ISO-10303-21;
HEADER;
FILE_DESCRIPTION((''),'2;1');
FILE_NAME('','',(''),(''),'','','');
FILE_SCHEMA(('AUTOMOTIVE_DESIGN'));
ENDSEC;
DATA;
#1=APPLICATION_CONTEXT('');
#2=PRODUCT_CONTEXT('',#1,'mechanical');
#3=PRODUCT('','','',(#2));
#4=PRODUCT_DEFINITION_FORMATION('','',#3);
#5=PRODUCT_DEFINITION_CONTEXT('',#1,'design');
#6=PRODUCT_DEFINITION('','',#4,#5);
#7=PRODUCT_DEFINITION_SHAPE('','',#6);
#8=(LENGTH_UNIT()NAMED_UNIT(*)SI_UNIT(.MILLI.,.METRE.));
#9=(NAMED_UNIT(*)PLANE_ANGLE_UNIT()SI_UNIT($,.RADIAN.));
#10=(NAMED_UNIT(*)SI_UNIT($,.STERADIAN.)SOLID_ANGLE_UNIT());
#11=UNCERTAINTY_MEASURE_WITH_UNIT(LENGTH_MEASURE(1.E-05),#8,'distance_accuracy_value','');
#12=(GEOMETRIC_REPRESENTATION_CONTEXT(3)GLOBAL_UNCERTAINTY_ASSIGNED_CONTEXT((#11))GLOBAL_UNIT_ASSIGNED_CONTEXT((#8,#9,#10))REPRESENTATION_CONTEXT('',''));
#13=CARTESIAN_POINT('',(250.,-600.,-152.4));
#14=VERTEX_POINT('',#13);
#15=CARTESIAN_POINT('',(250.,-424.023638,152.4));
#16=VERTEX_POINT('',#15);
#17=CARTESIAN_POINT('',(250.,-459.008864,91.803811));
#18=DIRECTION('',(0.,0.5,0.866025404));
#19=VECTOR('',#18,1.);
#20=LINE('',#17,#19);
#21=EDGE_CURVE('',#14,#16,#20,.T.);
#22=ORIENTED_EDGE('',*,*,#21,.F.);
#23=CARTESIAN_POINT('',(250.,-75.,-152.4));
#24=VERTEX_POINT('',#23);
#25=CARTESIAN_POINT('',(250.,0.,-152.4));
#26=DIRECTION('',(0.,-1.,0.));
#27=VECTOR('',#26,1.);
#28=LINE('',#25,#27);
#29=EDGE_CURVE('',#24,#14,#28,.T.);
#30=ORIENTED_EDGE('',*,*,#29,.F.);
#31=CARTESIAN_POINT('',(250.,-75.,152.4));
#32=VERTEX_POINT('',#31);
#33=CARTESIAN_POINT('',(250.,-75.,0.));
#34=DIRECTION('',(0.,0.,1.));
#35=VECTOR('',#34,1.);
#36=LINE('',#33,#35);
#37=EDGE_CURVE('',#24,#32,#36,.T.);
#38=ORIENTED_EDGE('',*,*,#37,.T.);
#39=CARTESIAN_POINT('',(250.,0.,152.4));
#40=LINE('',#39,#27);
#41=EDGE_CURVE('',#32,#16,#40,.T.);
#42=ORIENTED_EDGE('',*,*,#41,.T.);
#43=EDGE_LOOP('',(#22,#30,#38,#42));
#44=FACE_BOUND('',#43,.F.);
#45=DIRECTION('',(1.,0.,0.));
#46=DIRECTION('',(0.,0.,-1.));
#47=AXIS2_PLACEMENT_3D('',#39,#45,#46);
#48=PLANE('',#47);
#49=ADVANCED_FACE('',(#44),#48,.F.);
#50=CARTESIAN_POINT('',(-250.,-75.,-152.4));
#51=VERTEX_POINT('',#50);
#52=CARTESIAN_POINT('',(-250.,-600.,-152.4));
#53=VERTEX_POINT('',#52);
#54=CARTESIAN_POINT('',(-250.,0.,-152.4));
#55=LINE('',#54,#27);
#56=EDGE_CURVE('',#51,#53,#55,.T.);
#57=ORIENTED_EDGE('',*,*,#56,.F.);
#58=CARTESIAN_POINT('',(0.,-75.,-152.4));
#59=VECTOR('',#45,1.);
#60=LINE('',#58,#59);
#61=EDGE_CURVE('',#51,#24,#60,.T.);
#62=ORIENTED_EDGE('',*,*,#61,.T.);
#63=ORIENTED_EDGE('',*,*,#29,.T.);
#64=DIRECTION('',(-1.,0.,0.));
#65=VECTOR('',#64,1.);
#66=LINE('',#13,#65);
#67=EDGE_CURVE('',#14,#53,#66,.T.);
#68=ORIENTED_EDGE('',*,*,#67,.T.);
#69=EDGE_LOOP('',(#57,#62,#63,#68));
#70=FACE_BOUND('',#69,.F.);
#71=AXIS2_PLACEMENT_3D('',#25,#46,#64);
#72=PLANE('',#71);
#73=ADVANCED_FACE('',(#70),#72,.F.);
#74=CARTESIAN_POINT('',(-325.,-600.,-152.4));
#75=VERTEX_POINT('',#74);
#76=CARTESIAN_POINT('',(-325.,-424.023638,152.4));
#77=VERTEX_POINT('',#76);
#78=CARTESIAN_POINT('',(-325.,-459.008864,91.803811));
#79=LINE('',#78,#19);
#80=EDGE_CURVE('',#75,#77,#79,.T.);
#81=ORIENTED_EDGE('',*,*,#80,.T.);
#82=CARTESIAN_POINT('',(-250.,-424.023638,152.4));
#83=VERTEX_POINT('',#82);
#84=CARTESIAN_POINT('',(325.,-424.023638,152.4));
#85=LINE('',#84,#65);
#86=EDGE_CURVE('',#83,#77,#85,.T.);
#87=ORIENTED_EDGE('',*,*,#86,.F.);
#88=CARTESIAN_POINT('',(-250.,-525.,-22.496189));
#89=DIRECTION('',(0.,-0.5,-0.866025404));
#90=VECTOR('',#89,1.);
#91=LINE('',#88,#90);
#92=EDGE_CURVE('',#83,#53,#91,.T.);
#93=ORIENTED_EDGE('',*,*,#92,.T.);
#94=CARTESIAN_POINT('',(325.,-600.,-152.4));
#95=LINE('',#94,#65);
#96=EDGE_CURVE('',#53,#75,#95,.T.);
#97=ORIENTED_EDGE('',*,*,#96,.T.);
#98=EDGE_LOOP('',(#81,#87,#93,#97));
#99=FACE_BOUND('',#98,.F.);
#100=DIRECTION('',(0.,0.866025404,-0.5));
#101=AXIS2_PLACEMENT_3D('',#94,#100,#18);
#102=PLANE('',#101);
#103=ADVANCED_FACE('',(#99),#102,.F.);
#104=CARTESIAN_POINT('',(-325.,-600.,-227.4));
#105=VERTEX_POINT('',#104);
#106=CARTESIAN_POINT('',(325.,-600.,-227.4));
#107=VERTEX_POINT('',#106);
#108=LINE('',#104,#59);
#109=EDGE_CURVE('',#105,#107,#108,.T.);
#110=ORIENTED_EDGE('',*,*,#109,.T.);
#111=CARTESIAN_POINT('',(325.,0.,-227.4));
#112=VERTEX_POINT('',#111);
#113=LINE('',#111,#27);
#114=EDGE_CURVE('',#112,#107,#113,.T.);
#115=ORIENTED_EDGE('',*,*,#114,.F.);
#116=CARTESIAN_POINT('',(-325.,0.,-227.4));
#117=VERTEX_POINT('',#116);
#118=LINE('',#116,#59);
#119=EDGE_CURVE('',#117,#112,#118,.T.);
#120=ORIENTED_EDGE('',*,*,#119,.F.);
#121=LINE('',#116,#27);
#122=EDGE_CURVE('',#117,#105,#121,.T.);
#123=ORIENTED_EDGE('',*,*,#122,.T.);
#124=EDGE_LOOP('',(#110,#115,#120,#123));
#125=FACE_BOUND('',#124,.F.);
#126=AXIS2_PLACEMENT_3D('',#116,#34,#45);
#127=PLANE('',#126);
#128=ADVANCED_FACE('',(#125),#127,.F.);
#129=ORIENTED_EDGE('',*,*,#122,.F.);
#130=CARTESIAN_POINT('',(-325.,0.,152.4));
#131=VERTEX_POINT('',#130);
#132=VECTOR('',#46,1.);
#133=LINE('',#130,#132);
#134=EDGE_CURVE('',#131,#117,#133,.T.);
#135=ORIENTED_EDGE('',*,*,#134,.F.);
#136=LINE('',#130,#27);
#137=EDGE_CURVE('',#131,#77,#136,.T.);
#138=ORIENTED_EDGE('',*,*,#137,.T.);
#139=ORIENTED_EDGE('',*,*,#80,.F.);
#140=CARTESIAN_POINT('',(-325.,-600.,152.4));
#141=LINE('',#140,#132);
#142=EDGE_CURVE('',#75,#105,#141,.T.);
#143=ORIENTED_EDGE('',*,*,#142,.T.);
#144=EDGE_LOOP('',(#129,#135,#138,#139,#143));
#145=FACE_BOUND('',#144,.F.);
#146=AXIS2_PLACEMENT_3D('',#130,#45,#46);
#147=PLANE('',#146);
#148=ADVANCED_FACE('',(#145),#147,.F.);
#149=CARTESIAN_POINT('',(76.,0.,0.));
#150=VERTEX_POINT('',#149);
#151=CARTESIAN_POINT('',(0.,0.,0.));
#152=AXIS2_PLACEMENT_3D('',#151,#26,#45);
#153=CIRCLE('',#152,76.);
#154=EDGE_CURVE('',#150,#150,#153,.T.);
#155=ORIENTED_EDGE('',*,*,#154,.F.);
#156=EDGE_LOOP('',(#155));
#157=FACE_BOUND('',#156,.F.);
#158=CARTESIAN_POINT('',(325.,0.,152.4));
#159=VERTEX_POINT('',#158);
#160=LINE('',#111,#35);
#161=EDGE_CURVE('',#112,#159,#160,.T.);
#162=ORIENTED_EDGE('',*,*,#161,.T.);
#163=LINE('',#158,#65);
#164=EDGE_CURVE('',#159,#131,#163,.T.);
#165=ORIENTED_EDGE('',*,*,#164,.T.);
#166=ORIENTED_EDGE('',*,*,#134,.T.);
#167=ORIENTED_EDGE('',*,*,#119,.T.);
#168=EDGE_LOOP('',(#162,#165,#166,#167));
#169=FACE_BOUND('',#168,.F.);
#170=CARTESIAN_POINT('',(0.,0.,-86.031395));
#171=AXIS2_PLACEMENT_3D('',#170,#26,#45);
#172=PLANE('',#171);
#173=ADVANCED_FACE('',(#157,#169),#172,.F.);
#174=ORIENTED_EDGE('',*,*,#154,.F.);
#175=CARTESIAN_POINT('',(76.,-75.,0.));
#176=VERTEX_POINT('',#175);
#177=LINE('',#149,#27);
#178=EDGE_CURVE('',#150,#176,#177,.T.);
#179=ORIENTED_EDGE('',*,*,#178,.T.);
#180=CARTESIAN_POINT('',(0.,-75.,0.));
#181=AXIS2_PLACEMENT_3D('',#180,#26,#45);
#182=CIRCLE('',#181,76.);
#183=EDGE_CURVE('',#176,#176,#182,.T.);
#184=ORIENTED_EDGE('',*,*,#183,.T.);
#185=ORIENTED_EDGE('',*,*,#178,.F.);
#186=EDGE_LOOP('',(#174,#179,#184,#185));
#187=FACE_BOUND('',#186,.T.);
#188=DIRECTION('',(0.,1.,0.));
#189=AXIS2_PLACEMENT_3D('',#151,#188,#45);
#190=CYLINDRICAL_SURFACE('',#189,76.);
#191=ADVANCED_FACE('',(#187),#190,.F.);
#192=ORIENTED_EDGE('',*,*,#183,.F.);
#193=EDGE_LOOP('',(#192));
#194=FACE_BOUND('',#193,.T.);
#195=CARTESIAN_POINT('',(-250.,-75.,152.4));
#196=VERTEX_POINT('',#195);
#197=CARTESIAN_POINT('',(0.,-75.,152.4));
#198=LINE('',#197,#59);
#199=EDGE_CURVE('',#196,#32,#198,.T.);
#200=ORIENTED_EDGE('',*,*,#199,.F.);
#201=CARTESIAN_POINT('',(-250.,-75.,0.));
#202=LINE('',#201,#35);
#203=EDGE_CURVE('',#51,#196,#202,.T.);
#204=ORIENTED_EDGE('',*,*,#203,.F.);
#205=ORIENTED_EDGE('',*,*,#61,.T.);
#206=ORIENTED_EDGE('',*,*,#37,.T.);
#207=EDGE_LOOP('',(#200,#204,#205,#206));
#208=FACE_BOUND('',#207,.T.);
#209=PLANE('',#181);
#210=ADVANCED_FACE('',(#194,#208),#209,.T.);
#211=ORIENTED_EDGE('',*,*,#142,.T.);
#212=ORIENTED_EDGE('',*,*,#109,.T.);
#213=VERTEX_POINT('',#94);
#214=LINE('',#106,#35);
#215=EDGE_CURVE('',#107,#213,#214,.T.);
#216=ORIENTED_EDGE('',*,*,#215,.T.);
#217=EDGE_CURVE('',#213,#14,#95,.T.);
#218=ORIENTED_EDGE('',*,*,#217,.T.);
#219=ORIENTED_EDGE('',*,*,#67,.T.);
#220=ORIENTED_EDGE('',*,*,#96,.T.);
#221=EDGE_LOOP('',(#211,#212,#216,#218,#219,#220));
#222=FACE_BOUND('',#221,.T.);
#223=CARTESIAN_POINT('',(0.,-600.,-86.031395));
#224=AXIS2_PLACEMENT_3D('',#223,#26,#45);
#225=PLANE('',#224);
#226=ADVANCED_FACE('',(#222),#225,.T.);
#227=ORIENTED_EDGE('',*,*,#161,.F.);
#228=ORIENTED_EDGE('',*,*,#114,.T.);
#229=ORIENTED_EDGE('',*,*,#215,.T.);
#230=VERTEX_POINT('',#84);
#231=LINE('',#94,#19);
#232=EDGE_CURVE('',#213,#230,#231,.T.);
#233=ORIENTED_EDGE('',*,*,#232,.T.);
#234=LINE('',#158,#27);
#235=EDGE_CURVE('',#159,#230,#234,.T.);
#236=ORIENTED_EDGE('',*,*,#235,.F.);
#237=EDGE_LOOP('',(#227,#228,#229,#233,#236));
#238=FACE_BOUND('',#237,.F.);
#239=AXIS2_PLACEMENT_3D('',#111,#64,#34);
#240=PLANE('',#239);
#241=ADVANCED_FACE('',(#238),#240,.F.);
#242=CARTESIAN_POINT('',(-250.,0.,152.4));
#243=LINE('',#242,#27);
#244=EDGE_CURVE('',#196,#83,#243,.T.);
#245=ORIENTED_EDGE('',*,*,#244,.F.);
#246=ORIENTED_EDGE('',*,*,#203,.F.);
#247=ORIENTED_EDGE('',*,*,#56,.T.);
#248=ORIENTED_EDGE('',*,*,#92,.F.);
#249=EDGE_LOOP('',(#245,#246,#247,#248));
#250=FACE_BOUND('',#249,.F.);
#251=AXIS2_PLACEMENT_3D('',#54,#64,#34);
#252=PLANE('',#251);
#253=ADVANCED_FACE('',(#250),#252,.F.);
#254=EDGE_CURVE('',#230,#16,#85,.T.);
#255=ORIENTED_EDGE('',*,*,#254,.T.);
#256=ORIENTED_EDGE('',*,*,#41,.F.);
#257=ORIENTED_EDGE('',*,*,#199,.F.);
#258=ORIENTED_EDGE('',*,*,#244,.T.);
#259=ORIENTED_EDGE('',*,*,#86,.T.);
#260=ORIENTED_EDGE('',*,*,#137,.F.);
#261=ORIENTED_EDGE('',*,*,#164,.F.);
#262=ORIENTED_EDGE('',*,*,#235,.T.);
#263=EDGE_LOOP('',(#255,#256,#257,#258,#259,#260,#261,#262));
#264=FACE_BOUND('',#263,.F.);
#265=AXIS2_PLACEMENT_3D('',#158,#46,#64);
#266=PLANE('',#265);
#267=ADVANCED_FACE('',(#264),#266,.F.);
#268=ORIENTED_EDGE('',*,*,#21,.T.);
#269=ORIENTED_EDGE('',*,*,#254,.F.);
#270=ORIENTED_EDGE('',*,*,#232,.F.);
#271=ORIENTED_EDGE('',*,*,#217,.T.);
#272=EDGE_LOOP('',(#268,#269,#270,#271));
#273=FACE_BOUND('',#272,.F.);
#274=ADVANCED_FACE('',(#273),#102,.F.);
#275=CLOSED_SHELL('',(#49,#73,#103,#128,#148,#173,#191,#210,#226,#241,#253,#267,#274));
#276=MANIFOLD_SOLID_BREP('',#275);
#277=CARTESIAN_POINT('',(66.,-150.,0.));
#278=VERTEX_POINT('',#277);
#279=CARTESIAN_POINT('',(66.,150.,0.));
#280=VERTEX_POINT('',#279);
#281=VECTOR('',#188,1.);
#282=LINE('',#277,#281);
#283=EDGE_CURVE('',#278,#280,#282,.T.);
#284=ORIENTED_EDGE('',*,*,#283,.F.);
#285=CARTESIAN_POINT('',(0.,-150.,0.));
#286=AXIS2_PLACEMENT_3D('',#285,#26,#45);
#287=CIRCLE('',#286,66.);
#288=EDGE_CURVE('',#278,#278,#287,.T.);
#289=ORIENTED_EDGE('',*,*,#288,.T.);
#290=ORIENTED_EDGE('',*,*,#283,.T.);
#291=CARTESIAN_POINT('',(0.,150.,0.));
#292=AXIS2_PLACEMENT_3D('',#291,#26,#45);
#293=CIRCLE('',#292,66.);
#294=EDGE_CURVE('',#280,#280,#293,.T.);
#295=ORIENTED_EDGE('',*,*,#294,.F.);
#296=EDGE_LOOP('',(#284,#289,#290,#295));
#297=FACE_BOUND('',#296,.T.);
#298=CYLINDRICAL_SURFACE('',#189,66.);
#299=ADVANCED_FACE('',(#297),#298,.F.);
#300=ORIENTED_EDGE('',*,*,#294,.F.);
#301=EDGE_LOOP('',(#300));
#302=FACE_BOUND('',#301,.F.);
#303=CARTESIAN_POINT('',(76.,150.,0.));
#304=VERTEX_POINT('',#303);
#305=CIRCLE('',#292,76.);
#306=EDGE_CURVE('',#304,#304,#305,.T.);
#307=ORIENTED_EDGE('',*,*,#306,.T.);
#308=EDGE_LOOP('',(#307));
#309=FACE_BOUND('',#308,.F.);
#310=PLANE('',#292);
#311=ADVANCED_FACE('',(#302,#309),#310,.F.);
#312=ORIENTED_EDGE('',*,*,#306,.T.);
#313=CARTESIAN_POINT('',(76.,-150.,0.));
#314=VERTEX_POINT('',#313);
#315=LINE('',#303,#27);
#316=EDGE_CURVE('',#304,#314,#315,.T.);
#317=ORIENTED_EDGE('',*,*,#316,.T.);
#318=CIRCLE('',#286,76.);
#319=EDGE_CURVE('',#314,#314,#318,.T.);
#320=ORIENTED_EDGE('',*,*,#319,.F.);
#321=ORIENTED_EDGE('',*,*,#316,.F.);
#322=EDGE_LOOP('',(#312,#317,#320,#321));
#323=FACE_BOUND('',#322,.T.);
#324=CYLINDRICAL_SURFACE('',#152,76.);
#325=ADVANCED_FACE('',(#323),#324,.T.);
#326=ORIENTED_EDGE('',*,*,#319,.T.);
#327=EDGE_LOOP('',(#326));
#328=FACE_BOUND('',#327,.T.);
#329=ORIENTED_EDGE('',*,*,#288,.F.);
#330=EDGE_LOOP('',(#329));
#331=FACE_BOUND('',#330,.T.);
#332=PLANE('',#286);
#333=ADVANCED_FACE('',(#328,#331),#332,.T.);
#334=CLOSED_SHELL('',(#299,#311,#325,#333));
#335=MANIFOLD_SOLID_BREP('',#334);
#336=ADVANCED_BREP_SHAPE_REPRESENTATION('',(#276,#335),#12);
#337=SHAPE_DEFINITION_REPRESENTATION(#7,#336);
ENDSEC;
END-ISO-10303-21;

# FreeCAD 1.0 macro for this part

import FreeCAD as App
import Part
import Sketcher
from FreeCAD import Vector
Q = App.Units.Quantity

doc = App.newDocument("Part")
params = doc.addObject("Spreadsheet::Sheet", "Params")
for row, (alias, value) in enumerate([
    ("sketch1_diameter", "152 mm"),
    ("sketch1_width", "500 mm"),
    ("sketch1_height", "304.8 mm"),
    ("pad1_length", "75 mm"),
    ("sketch2_width", "75 mm"),
    ("sketch2_width2", "500 mm"),
    ("sketch2_height", "304.8 mm"),
    ("sketch2_height2", "379.8 mm"),
    ("pad2_length", "600 mm"),
    ("sketch3_height", "304.8 mm"),
    ("sketch4_diameter", "152 mm"),
    ("sketch4_diameter2", "132 mm"),
    ("pad3_length", "300 mm"),
], start=1):
    params.set(f"A{row}", alias)
    params.set(f"B{row}", "=" + value)
    params.setAlias(f"B{row}", alias)

body = doc.addObject("PartDesign::Body", "Body")

sketch1 = body.newObject("Sketcher::SketchObject", "Sketch")
sketch1.AttachmentSupport = (doc.getObject("XZ_Plane"), [""])
sketch1.MapMode = "FlatFace"
sketch1.addGeometry(Part.LineSegment(Vector(-250, 152, 0), Vector(-250, -152, 0)), False)
sketch1.addGeometry(Part.LineSegment(Vector(-250, -152, 0), Vector(250, -152, 0)), False)
sketch1.addGeometry(Part.LineSegment(Vector(250, -152, 0), Vector(250, 152, 0)), False)
sketch1.addGeometry(Part.LineSegment(Vector(250, 152, 0), Vector(-250, 152, 0)), False)
sketch1.addGeometry(Part.Circle(Vector(0, 0, 0), Vector(0, 0, 1), 76), False)
sketch1.addConstraint(Sketcher.Constraint("Coincident", 0, 2, 1, 1))
sketch1.addConstraint(Sketcher.Constraint("Coincident", 1, 2, 2, 1))
sketch1.addConstraint(Sketcher.Constraint("Coincident", 2, 2, 3, 1))
sketch1.addConstraint(Sketcher.Constraint("Coincident", 3, 2, 0, 1))
sketch1.addConstraint(Sketcher.Constraint("Vertical", 0))
sketch1.addConstraint(Sketcher.Constraint("Horizontal", 1))
sketch1.addConstraint(Sketcher.Constraint("Vertical", 2))
sketch1.addConstraint(Sketcher.Constraint("Horizontal", 3))
sketch1.addConstraint(Sketcher.Constraint("Coincident", 4, 3, -1, 1))
sketch1.addConstraint(Sketcher.Constraint("Symmetric", 0, 2, 2, 2, -1, 1))
sketch1.addConstraint(Sketcher.Constraint("Diameter", 4, Q("152 mm")))
sketch1.addConstraint(Sketcher.Constraint("DistanceX", 1, 1, 1, 2, Q("500 mm")))
sketch1.addConstraint(Sketcher.Constraint("DistanceY", 0, 2, 0, 1, Q("304.8 mm")))
sketch1.setExpression("Constraints[10]", "Params.sketch1_diameter")
sketch1.setExpression("Constraints[11]", "Params.sketch1_width")
sketch1.setExpression("Constraints[12]", "Params.sketch1_height")
pad1 = body.newObject("PartDesign::Pad", "Pad")
pad1.Profile = sketch1
pad1.setExpression("Length", "Params.pad1_length")

sketch2 = body.newObject("Sketcher::SketchObject", "Sketch001")
sketch2.AttachmentSupport = (doc.getObject("XZ_Plane"), [""])
sketch2.MapMode = "FlatFace"
sketch2.addGeometry(Part.LineSegment(Vector(325, 152, 0), Vector(250, 152, 0)), False)
sketch2.addGeometry(Part.LineSegment(Vector(250, 152, 0), Vector(250, -152, 0)), False)
sketch2.addGeometry(Part.LineSegment(Vector(250, -152, 0), Vector(-250, -152, 0)), False)
sketch2.addGeometry(Part.LineSegment(Vector(-250, -152, 0), Vector(-250, 152, 0)), False)
sketch2.addGeometry(Part.LineSegment(Vector(-250, 152, 0), Vector(-325, 152, 0)), False)
sketch2.addGeometry(Part.LineSegment(Vector(-325, 152, 0), Vector(-325, -227, 0)), False)
sketch2.addGeometry(Part.LineSegment(Vector(-325, -227, 0), Vector(325, -227, 0)), False)
sketch2.addGeometry(Part.LineSegment(Vector(325, -227, 0), Vector(325, 152, 0)), False)
sketch2.addConstraint(Sketcher.Constraint("Coincident", 0, 2, 1, 1))
sketch2.addConstraint(Sketcher.Constraint("Coincident", 1, 2, 2, 1))
sketch2.addConstraint(Sketcher.Constraint("Coincident", 2, 2, 3, 1))
sketch2.addConstraint(Sketcher.Constraint("Coincident", 3, 2, 4, 1))
sketch2.addConstraint(Sketcher.Constraint("Coincident", 4, 2, 5, 1))
sketch2.addConstraint(Sketcher.Constraint("Coincident", 5, 2, 6, 1))
sketch2.addConstraint(Sketcher.Constraint("Coincident", 6, 2, 7, 1))
sketch2.addConstraint(Sketcher.Constraint("Coincident", 7, 2, 0, 1))
sketch2.addConstraint(Sketcher.Constraint("Horizontal", 0))
sketch2.addConstraint(Sketcher.Constraint("Vertical", 1))
sketch2.addConstraint(Sketcher.Constraint("Horizontal", 2))
sketch2.addConstraint(Sketcher.Constraint("Vertical", 3))
sketch2.addConstraint(Sketcher.Constraint("Horizontal", 4))
sketch2.addConstraint(Sketcher.Constraint("Vertical", 5))
sketch2.addConstraint(Sketcher.Constraint("Horizontal", 6))
sketch2.addConstraint(Sketcher.Constraint("Vertical", 7))
sketch2.addConstraint(Sketcher.Constraint("Symmetric", 0, 2, 2, 2, -1, 1))
sketch2.addConstraint(Sketcher.Constraint("Symmetric", 4, 2, 7, 2, -2))
sketch2.addConstraint(Sketcher.Constraint("DistanceX", 0, 2, 0, 1, Q("75 mm")))
sketch2.addConstraint(Sketcher.Constraint("DistanceX", 2, 2, 2, 1, Q("500 mm")))
sketch2.addConstraint(Sketcher.Constraint("DistanceY", 1, 2, 1, 1, Q("304.8 mm")))
sketch2.addConstraint(Sketcher.Constraint("DistanceY", 5, 2, 5, 1, Q("379.8 mm")))
sketch2.setExpression("Constraints[18]", "Params.sketch2_width")
sketch2.setExpression("Constraints[19]", "Params.sketch2_width2")
sketch2.setExpression("Constraints[20]", "Params.sketch2_height")
sketch2.setExpression("Constraints[21]", "Params.sketch2_height2")
pad2 = body.newObject("PartDesign::Pad", "Pad001")
pad2.Profile = sketch2
pad2.setExpression("Length", "Params.pad2_length")

sketch3 = body.newObject("Sketcher::SketchObject", "Sketch002")
sketch3.AttachmentSupport = (doc.getObject("YZ_Plane"), [""])
sketch3.MapMode = "FlatFace"
sketch3.AttachmentOffset = App.Placement(Vector(0, 0, 325), App.Rotation())
sketch3.addGeometry(Part.LineSegment(Vector(-600, 152, 0), Vector(-600, -152, 0)), False)
sketch3.addGeometry(Part.LineSegment(Vector(-600, -152, 0), Vector(-424, 152, 0)), False)
sketch3.addGeometry(Part.LineSegment(Vector(-424, 152, 0), Vector(-600, 152, 0)), False)
sketch3.addConstraint(Sketcher.Constraint("Coincident", 0, 2, 1, 1))
sketch3.addConstraint(Sketcher.Constraint("Coincident", 1, 2, 2, 1))
sketch3.addConstraint(Sketcher.Constraint("Coincident", 2, 2, 0, 1))
sketch3.addConstraint(Sketcher.Constraint("Vertical", 0))
sketch3.addConstraint(Sketcher.Constraint("Horizontal", 2))
sketch3.addConstraint(Sketcher.Constraint("Angle", 1, Q("60 deg")))
sketch3.addConstraint(Sketcher.Constraint("DistanceY", 0, 2, 0, 1, Q("304.8 mm")))
sketch3.addConstraint(Sketcher.Constraint("DistanceX", 0, 2, -1, 1, Q("600 mm")))
sketch3.addConstraint(Sketcher.Constraint("DistanceY", 0, 2, -1, 1, Q("152.4 mm")))
sketch3.setExpression("Constraints[6]", "Params.sketch3_height")
pocket1 = body.newObject("PartDesign::Pocket", "Pocket")
pocket1.Profile = sketch3
pocket1.Type = "ThroughAll"
body2 = doc.addObject("PartDesign::Body", "Body001")

sketch4 = body2.newObject("Sketcher::SketchObject", "Sketch003")
sketch4.AttachmentSupport = (doc.getObject("XZ_Plane001"), [""])
sketch4.MapMode = "FlatFace"
sketch4.addGeometry(Part.Circle(Vector(0, 0, 0), Vector(0, 0, 1), 76), False)
sketch4.addGeometry(Part.Circle(Vector(0, 0, 0), Vector(0, 0, 1), 66), False)
sketch4.addConstraint(Sketcher.Constraint("Coincident", 0, 3, -1, 1))
sketch4.addConstraint(Sketcher.Constraint("Coincident", 1, 3, -1, 1))
sketch4.addConstraint(Sketcher.Constraint("Diameter", 0, Q("152 mm")))
sketch4.addConstraint(Sketcher.Constraint("Diameter", 1, Q("132 mm")))
sketch4.setExpression("Constraints[2]", "Params.sketch4_diameter")
sketch4.setExpression("Constraints[3]", "Params.sketch4_diameter2")
pad3 = body2.newObject("PartDesign::Pad", "Pad002")
pad3.Profile = sketch4
pad3.setExpression("Length", "Params.pad3_length")
pad3.Midplane = True

doc.recompute()
